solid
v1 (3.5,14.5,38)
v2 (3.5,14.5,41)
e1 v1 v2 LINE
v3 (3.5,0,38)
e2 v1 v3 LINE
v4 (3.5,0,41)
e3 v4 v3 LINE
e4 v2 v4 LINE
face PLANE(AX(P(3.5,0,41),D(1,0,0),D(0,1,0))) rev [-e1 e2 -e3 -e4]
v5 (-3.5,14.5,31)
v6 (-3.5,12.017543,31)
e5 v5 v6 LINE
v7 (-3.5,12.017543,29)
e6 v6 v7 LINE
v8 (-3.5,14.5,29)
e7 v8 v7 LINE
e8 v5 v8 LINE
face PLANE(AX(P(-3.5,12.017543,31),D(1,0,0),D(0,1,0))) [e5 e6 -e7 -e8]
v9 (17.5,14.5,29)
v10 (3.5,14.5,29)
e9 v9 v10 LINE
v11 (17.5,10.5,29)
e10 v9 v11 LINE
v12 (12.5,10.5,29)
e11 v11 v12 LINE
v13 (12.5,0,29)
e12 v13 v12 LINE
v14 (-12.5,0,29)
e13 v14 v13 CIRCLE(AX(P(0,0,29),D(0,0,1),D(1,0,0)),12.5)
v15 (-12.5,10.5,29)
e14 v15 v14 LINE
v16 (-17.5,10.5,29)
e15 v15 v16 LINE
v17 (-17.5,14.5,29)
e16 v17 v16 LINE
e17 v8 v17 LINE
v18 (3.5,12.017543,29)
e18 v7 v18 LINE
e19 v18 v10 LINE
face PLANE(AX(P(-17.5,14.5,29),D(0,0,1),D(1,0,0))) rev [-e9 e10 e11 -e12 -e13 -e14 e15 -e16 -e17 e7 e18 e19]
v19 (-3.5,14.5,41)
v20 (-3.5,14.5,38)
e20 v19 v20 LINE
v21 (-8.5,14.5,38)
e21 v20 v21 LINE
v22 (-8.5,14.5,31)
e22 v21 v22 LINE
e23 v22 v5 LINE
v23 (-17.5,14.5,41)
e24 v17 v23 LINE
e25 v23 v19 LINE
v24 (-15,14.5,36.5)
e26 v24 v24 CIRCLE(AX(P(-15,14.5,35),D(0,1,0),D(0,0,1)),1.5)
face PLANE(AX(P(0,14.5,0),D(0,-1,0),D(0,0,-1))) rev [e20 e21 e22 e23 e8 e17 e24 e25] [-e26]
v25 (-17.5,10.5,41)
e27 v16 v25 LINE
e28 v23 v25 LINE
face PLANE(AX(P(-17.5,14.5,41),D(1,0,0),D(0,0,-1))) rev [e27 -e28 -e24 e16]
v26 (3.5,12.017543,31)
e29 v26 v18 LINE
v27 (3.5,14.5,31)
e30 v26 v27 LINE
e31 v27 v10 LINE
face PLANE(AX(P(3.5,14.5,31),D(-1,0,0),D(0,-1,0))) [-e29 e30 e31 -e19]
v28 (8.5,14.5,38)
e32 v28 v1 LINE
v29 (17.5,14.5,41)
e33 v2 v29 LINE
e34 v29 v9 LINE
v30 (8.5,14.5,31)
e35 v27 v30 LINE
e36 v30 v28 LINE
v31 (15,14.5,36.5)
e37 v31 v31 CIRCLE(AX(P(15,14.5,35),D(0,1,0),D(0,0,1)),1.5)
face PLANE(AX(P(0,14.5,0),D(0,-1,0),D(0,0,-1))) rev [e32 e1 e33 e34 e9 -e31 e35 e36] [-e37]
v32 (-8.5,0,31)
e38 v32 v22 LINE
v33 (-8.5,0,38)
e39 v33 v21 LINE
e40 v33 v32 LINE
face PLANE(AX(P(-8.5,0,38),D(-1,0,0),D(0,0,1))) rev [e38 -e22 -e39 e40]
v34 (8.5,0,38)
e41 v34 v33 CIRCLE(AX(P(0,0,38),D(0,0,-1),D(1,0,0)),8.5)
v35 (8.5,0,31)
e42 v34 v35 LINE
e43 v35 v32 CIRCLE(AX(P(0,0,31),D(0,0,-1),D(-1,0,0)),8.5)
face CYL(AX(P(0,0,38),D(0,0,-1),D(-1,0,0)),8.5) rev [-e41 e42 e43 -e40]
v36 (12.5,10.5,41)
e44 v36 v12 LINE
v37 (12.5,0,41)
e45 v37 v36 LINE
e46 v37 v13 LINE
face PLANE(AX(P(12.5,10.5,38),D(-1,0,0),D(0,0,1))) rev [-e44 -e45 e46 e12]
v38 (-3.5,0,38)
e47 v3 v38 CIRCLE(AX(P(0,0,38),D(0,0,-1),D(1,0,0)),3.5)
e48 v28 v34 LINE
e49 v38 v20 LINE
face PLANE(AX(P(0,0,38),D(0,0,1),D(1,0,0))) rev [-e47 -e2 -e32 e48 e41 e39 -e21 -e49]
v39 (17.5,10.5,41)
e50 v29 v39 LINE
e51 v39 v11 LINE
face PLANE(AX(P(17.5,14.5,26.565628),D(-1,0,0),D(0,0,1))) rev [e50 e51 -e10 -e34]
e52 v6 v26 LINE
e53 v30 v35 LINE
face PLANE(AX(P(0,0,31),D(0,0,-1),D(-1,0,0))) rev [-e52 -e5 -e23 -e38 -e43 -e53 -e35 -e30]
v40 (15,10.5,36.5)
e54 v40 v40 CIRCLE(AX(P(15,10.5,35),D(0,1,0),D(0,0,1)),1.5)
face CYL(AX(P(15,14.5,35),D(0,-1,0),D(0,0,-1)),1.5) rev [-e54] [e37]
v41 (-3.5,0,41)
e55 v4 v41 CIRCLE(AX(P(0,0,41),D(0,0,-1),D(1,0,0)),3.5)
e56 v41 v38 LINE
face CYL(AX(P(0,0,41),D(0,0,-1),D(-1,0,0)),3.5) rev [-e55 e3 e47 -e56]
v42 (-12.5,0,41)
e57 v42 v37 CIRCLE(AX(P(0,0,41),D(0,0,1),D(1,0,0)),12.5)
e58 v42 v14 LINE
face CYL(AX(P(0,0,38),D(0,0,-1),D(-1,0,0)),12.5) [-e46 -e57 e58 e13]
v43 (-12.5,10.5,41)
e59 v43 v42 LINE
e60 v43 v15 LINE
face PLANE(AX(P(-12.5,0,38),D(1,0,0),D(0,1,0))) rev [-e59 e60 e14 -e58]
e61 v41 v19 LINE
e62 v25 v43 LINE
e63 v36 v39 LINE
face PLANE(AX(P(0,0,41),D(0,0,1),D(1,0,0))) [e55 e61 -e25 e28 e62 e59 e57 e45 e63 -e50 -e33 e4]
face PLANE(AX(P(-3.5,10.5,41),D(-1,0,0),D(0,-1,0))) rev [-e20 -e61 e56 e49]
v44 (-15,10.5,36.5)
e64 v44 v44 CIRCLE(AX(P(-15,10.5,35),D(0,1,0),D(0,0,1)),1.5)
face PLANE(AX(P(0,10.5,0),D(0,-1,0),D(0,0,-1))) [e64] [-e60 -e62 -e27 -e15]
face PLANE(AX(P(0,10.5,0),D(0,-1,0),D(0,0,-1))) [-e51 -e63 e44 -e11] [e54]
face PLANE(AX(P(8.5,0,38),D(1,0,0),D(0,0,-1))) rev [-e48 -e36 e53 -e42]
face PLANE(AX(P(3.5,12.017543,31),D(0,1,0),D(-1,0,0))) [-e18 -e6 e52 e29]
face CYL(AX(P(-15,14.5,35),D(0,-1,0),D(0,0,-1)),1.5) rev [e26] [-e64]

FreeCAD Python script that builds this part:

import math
import FreeCAD as App
import Part
import Sketcher

V = App.Vector
Q = App.Units.Quantity

doc = App.newDocument("Part")
body = doc.addObject("PartDesign::Body", "Body")

# Sketch on XY plane
sketch1 = doc.addObject("Sketcher::SketchObject", "Sketch")
body.addObject(sketch1)
sketch1.AttachmentSupport = (doc.XY_Plane, [""])
sketch1.MapMode = "FlatFace"
sketch1.addGeometry([
    Part.LineSegment(V(12.5, 0, 0), V(12.5, 10.5, 0)),  # 0
    Part.LineSegment(V(12.5, 10.5, 0), V(8.5, 10.5, 0)),  # 1
    Part.LineSegment(V(8.5, 10.5, 0), V(8.5, 0, 0)),  # 2
    Part.ArcOfCircle(Part.Circle(V(0, 0, 0), V(0, 0, 1), 8.5), math.radians(180), math.radians(360)),  # 3
    Part.LineSegment(V(-8.5, 0, 0), V(-8.5, 10.5, 0)),  # 4
    Part.LineSegment(V(-8.5, 10.5, 0), V(-12.5, 10.5, 0)),  # 5
    Part.LineSegment(V(-12.5, 10.5, 0), V(-12.5, 0, 0)),  # 6
    Part.ArcOfCircle(Part.Circle(V(0, 0, 0), V(0, 0, 1), 12.5), math.radians(180), math.radians(360)),  # 7
], False)
sketch1.addConstraint([
    Sketcher.Constraint("Coincident", 0, 2, 1, 1),
    Sketcher.Constraint("Coincident", 1, 2, 2, 1),
    Sketcher.Constraint("Tangent", 2, 2, 3, 2),
    Sketcher.Constraint("Tangent", 3, 1, 4, 1),
    Sketcher.Constraint("Coincident", 4, 2, 5, 1),
    Sketcher.Constraint("Coincident", 5, 2, 6, 1),
    Sketcher.Constraint("Tangent", 6, 2, 7, 1),
    Sketcher.Constraint("Tangent", 7, 2, 0, 1),
    Sketcher.Constraint("Vertical", 0),
    Sketcher.Constraint("Horizontal", 1),
    Sketcher.Constraint("Vertical", 2),
    Sketcher.Constraint("Vertical", 4),
    Sketcher.Constraint("Horizontal", 5),
    Sketcher.Constraint("Vertical", 6),
    Sketcher.Constraint("Coincident", 3, 3, -1, 1),
    Sketcher.Constraint("Coincident", 7, 3, -1, 1),
    Sketcher.Constraint("Horizontal", 1, 2, 4, 2),
    Sketcher.Constraint("Radius", 3, Q("8.5 mm")),
    Sketcher.Constraint("Radius", 7, Q("12.5 mm")),
    Sketcher.Constraint("DistanceY", 0, 1, 0, 2, Q("10.5 mm")),
])
pad1 = doc.addObject("PartDesign::Pad", "Pad")
body.addObject(pad1)
pad1.Profile = sketch1
pad1.Length = 38

# Sketch on XY plane
sketch2 = doc.addObject("Sketcher::SketchObject", "Sketch001")
body.addObject(sketch2)
sketch2.AttachmentSupport = (doc.XY_Plane, [""])
sketch2.MapMode = "FlatFace"
sketch2.AttachmentOffset = App.Placement(V(0, 0, 38), App.Rotation())
sketch2.addGeometry([
    Part.LineSegment(V(-3.5, 10.5, 0), V(-12.5, 10.5, 0)),  # 0
    Part.LineSegment(V(-12.5, 10.5, 0), V(-12.5, 0, 0)),  # 1
    Part.ArcOfCircle(Part.Circle(V(0, 0, 0), V(0, 0, 1), 12.5), math.radians(180), math.radians(360)),  # 2
    Part.LineSegment(V(12.5, 0, 0), V(12.5, 10.5, 0)),  # 3
    Part.LineSegment(V(12.5, 10.5, 0), V(3.5, 10.5, 0)),  # 4
    Part.LineSegment(V(3.5, 10.5, 0), V(3.5, 0, 0)),  # 5
    Part.ArcOfCircle(Part.Circle(V(0, 0, 0), V(0, 0, 1), 3.5), math.radians(180), math.radians(360)),  # 6
    Part.LineSegment(V(-3.5, 0, 0), V(-3.5, 10.5, 0)),  # 7
], False)
sketch2.addConstraint([
    Sketcher.Constraint("Coincident", 0, 2, 1, 1),
    Sketcher.Constraint("Tangent", 1, 2, 2, 1),
    Sketcher.Constraint("Tangent", 2, 2, 3, 1),
    Sketcher.Constraint("Coincident", 3, 2, 4, 1),
    Sketcher.Constraint("Coincident", 4, 2, 5, 1),
    Sketcher.Constraint("Tangent", 5, 2, 6, 2),
    Sketcher.Constraint("Tangent", 6, 1, 7, 1),
    Sketcher.Constraint("Coincident", 7, 2, 0, 1),
    Sketcher.Constraint("Horizontal", 0),
    Sketcher.Constraint("Vertical", 1),
    Sketcher.Constraint("Vertical", 3),
    Sketcher.Constraint("Horizontal", 4),
    Sketcher.Constraint("Vertical", 5),
    Sketcher.Constraint("Vertical", 7),
    Sketcher.Constraint("Coincident", 2, 3, -1, 1),
    Sketcher.Constraint("Coincident", 6, 3, -1, 1),
    Sketcher.Constraint("Horizontal", 0, 2, 3, 2),
    Sketcher.Constraint("Radius", 2, Q("12.5 mm")),
    Sketcher.Constraint("Radius", 6, Q("3.5 mm")),
    Sketcher.Constraint("DistanceY", 1, 2, 1, 1, Q("10.5 mm")),
])
pad2 = doc.addObject("PartDesign::Pad", "Pad001")
body.addObject(pad2)
pad2.Profile = sketch2
pad2.Length = 3

# Sketch on XY plane
sketch3 = doc.addObject("Sketcher::SketchObject", "Sketch002")
body.addObject(sketch3)
sketch3.AttachmentSupport = (doc.XY_Plane, [""])
sketch3.MapMode = "FlatFace"
sketch3.addGeometry([
    Part.LineSegment(V(-12, 10, 0), V(12, 10, 0)),
    Part.LineSegment(V(12, 10, 0), V(12, 0, 0)),
    Part.ArcOfCircle(Part.Circle(V(0, 0, 0), V(0, 0, 1), 12), math.radians(180), math.radians(360)),
    Part.LineSegment(V(-12, 0, 0), V(-12, 10, 0)),
], False)
sketch3.addConstraint([
    Sketcher.Constraint("Coincident", 0, 2, 1, 1),
    Sketcher.Constraint("Tangent", 1, 2, 2, 2),
    Sketcher.Constraint("Tangent", 2, 1, 3, 1),
    Sketcher.Constraint("Coincident", 3, 2, 0, 1),
    Sketcher.Constraint("Horizontal", 0),
    Sketcher.Constraint("Vertical", 1),
    Sketcher.Constraint("Vertical", 3),
    Sketcher.Constraint("Coincident", 2, 3, -1, 1),
    Sketcher.Constraint("Radius", 2, Q("12.5 mm")),
    Sketcher.Constraint("DistanceY", 1, 2, 1, 1, Q("10.5 mm")),
])
pad3 = doc.addObject("PartDesign::Pad", "Pad002")
body.addObject(pad3)
pad3.Profile = sketch3
pad3.Length = 2
pad3.Reversed = True

# Sketch on XZ plane
sketch4 = doc.addObject("Sketcher::SketchObject", "Sketch003")
body.addObject(sketch4)
sketch4.AttachmentSupport = (doc.XZ_Plane, [""])
sketch4.MapMode = "FlatFace"
sketch4.AttachmentOffset = App.Placement(V(0, 0, -10.5), App.Rotation())
sketch4.addGeometry([
    Part.LineSegment(V(3.5, 41, 0), V(17.5, 41, 0)),  # 0
    Part.LineSegment(V(17.5, 41, 0), V(17.5, 26.6, 0)),  # 1
    Part.LineSegment(V(17.5, 26.6, 0), V(8.5, 26.6, 0)),  # 2
    Part.LineSegment(V(8.5, 26.6, 0), V(8.5, 38, 0)),  # 3
    Part.LineSegment(V(8.5, 38, 0), V(3.5, 38, 0)),  # 4
    Part.LineSegment(V(3.5, 38, 0), V(3.5, 41, 0)),  # 5
    Part.Circle(V(15, 35, 0), V(0, 0, 1), 1.5),  # 6
    Part.LineSegment(V(-17.5, 26.6, 0), V(-17.5, 41, 0)),  # 7
    Part.LineSegment(V(-17.5, 41, 0), V(-3.5, 41, 0)),  # 8
    Part.LineSegment(V(-3.5, 41, 0), V(-3.5, 38, 0)),  # 9
    Part.LineSegment(V(-3.5, 38, 0), V(-8.5, 38, 0)),  # 10
    Part.LineSegment(V(-8.5, 38, 0), V(-8.5, 26.6, 0)),  # 11
    Part.LineSegment(V(-8.5, 26.6, 0), V(-17.5, 26.6, 0)),  # 12
    Part.Circle(V(-15, 35, 0), V(0, 0, 1), 1.5),  # 13
], False)
sketch4.addConstraint([
    Sketcher.Constraint("Coincident", 0, 2, 1, 1),
    Sketcher.Constraint("Coincident", 1, 2, 2, 1),
    Sketcher.Constraint("Coincident", 2, 2, 3, 1),
    Sketcher.Constraint("Coincident", 3, 2, 4, 1),
    Sketcher.Constraint("Coincident", 4, 2, 5, 1),
    Sketcher.Constraint("Coincident", 5, 2, 0, 1),
    Sketcher.Constraint("Coincident", 7, 2, 8, 1),
    Sketcher.Constraint("Coincident", 8, 2, 9, 1),
    Sketcher.Constraint("Coincident", 9, 2, 10, 1),
    Sketcher.Constraint("Coincident", 10, 2, 11, 1),
    Sketcher.Constraint("Coincident", 11, 2, 12, 1),
    Sketcher.Constraint("Coincident", 12, 2, 7, 1),
    Sketcher.Constraint("Horizontal", 0),
    Sketcher.Constraint("Vertical", 1),
    Sketcher.Constraint("Horizontal", 2),
    Sketcher.Constraint("Vertical", 3),
    Sketcher.Constraint("Horizontal", 4),
    Sketcher.Constraint("Vertical", 5),
    Sketcher.Constraint("Vertical", 7),
    Sketcher.Constraint("Horizontal", 8),
    Sketcher.Constraint("Vertical", 9),
    Sketcher.Constraint("Horizontal", 10),
    Sketcher.Constraint("Vertical", 11),
    Sketcher.Constraint("Horizontal", 12),
    Sketcher.Constraint("Equal", 6, 13),
    Sketcher.Constraint("Symmetric", 6, 3, 13, 3, -2),
    Sketcher.Constraint("Symmetric", 0, 2, 7, 2, -2),
    Sketcher.Constraint("Symmetric", 4, 2, 9, 2, -2),
    Sketcher.Constraint("Symmetric", 2, 2, 11, 2, -2),
    Sketcher.Constraint("Diameter", 6, Q("3 mm")),
    Sketcher.Constraint("DistanceX", 0, 1, 0, 2, Q("14 mm")),
    Sketcher.Constraint("DistanceX", 2, 2, 2, 1, Q("9 mm")),
    Sketcher.Constraint("DistanceY", 5, 1, 5, 2, Q("3 mm")),
    Sketcher.Constraint("DistanceX", -1, 1, 6, 3, Q("15 mm")),
    Sketcher.Constraint("DistanceY", -1, 1, 6, 3, Q("35 mm")),
    Sketcher.Constraint("DistanceY", -1, 1, 0, 2, Q("41 mm")),
    Sketcher.Constraint("DistanceX", 7, 2, 5, 2, Q("21 mm")),
    Sketcher.Constraint("DistanceY", 1, 2, 1, 1, Q("14.434372 mm")),
])
pad4 = doc.addObject("PartDesign::Pad", "Pad003")
body.addObject(pad4)
pad4.Profile = sketch4
pad4.Length = 4
pad4.Reversed = True

# Sketch on XZ plane
sketch5 = doc.addObject("Sketcher::SketchObject", "Sketch004")
body.addObject(sketch5)
sketch5.AttachmentSupport = (doc.XZ_Plane, [""])
sketch5.MapMode = "FlatFace"
sketch5.AttachmentOffset = App.Placement(V(0, 0, -10.5), App.Rotation())
sketch5.addGeometry([
    Part.LineSegment(V(-18, 29, 0), V(-18, -2, 0)),
    Part.LineSegment(V(-18, -2, 0), V(18, -2, 0)),
    Part.LineSegment(V(18, -2, 0), V(18, 29, 0)),
    Part.LineSegment(V(18, 29, 0), V(-18, 29, 0)),
], False)
sketch5.addConstraint([
    Sketcher.Constraint("Coincident", 0, 2, 1, 1),
    Sketcher.Constraint("Coincident", 1, 2, 2, 1),
    Sketcher.Constraint("Coincident", 2, 2, 3, 1),
    Sketcher.Constraint("Coincident", 3, 2, 0, 1),
    Sketcher.Constraint("Vertical", 0),
    Sketcher.Constraint("Horizontal", 1),
    Sketcher.Constraint("Vertical", 2),
    Sketcher.Constraint("Horizontal", 3),
    Sketcher.Constraint("DistanceX", 1, 1, 1, 2, Q("35 mm")),
    Sketcher.Constraint("DistanceY", 0, 2, 0, 1, Q("31 mm")),
    Sketcher.Constraint("DistanceY", 0, 2, -1, 1, Q("2 mm")),
    Sketcher.Constraint("DistanceX", 0, 2, -1, 1, Q("17.5 mm")),
])
pocket1 = doc.addObject("PartDesign::Pocket", "Pocket")
body.addObject(pocket1)
pocket1.Profile = sketch5
pocket1.Type = "ThroughAll"
pocket1.Midplane = True

# Sketch on XY plane
sketch6 = doc.addObject("Sketcher::SketchObject", "Sketch005")
body.addObject(sketch6)
sketch6.AttachmentSupport = (doc.XY_Plane, [""])
sketch6.MapMode = "FlatFace"
sketch6.AttachmentOffset = App.Placement(V(0, 0, 29), App.Rotation())
sketch6.addGeometry([
    Part.LineSegment(V(3.5, 14.5, 0), V(8.5, 14.5, 0)),  # 0
    Part.LineSegment(V(8.5, 14.5, 0), V(8.5, 0, 0)),  # 1
    Part.ArcOfCircle(Part.Circle(V(0, 0, 0), V(0, 0, 1), 8.5), math.radians(180), math.radians(360)),  # 2
    Part.LineSegment(V(-8.5, 0, 0), V(-8.5, 14.5, 0)),  # 3
    Part.LineSegment(V(-8.5, 14.5, 0), V(-3.5, 14.5, 0)),  # 4
    Part.LineSegment(V(-3.5, 14.5, 0), V(-3.5, 12, 0)),  # 5
    Part.LineSegment(V(-3.5, 12, 0), V(3.5, 12, 0)),  # 6
    Part.LineSegment(V(3.5, 12, 0), V(3.5, 14.5, 0)),  # 7
], False)
sketch6.addConstraint([
    Sketcher.Constraint("Coincident", 0, 2, 1, 1),
    Sketcher.Constraint("Tangent", 1, 2, 2, 2),
    Sketcher.Constraint("Tangent", 2, 1, 3, 1),
    Sketcher.Constraint("Coincident", 3, 2, 4, 1),
    Sketcher.Constraint("Coincident", 4, 2, 5, 1),
    Sketcher.Constraint("Coincident", 5, 2, 6, 1),
    Sketcher.Constraint("Coincident", 6, 2, 7, 1),
    Sketcher.Constraint("Coincident", 7, 2, 0, 1),
    Sketcher.Constraint("Horizontal", 0),
    Sketcher.Constraint("Vertical", 1),
    Sketcher.Constraint("Vertical", 3),
    Sketcher.Constraint("Horizontal", 4),
    Sketcher.Constraint("Vertical", 5),
    Sketcher.Constraint("Horizontal", 6),
    Sketcher.Constraint("Vertical", 7),
    Sketcher.Constraint("Coincident", 2, 3, -1, 1),
    Sketcher.Constraint("Symmetric", 4, 2, 7, 2, -2),
    Sketcher.Constraint("Radius", 2, Q("8.5 mm")),
    Sketcher.Constraint("DistanceX", 0, 1, 0, 2, Q("5 mm")),
    Sketcher.Constraint("DistanceY", 1, 2, 1, 1, Q("14.5 mm")),
    Sketcher.Constraint("DistanceY", 5, 2, 5, 1, Q("2.482457 mm")),
])
pad5 = doc.addObject("PartDesign::Pad", "Pad004")
body.addObject(pad5)
pad5.Profile = sketch6
pad5.Length = 2

doc.recompute()
